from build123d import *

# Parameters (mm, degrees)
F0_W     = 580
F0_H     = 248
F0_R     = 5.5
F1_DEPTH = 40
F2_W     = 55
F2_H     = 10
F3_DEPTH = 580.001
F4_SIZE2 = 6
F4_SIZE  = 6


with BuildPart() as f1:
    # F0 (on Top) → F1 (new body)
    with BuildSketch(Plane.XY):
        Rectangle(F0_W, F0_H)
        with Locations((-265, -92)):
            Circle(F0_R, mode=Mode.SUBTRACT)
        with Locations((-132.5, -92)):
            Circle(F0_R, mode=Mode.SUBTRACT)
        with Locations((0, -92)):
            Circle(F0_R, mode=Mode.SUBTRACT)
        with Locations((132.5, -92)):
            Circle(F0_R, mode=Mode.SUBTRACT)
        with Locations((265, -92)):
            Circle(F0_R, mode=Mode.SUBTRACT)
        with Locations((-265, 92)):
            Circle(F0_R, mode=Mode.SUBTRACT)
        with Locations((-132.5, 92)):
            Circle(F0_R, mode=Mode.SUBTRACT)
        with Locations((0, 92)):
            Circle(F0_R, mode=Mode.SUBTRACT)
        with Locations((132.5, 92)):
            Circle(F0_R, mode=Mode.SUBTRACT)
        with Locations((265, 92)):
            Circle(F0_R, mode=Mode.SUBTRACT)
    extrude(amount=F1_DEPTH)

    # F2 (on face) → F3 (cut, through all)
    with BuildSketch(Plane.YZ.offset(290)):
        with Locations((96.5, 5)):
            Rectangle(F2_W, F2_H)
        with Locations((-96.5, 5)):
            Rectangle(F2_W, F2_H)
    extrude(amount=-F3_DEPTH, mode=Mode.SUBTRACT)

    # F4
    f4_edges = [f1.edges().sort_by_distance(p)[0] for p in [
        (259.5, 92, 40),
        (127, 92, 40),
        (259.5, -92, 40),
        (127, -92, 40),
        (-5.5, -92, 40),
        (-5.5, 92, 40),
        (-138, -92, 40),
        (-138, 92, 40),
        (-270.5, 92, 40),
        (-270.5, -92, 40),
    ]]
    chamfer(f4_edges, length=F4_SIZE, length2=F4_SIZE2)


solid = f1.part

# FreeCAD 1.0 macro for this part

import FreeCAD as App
import Part
import Sketcher
from FreeCAD import Vector
Q = App.Units.Quantity


def edges_at(feature, points):
    """Names of the edges that pass closest to the given points."""
    edges = feature.Shape.Edges
    near = lambda p: min(range(len(edges)), key=lambda i: edges[i].distToShape(Part.Vertex(*p))[0])
    return sorted({f"Edge{near(p) + 1}" for p in points})


def add_polygon(sketch, points):
    """Adds a closed chain of lines whose ends are joined by coincident constraints."""
    first, n = sketch.GeometryCount, len(points)
    for a, b in zip(points, points[1:] + points[:1]):
        sketch.addGeometry(Part.LineSegment(App.Vector(*a, 0), App.Vector(*b, 0)), False)
    for i in range(n):
        sketch.addConstraint(Sketcher.Constraint("Coincident", first + i, 2, first + (i + 1) % n, 1))

doc = App.newDocument("Part")
body = doc.addObject("PartDesign::Body", "Body")

# Sketch on XY plane
sketch1 = body.newObject("Sketcher::SketchObject", "Sketch")
sketch1.AttachmentSupport = (doc.getObject("XY_Plane"), [""])
sketch1.MapMode = "FlatFace"
add_polygon(sketch1, [(-290, 124), (-290, -124), (290, -124), (290, 124)])  # lines 0-3
sketch1.addGeometry(Part.Circle(Vector(-265, -92, 0), Vector(0, 0, 1), 6), False)  # 4
sketch1.addGeometry(Part.Circle(Vector(-132, -92, 0), Vector(0, 0, 1), 6), False)  # 5
sketch1.addGeometry(Part.Circle(Vector(0, -92, 0), Vector(0, 0, 1), 6), False)  # 6
sketch1.addGeometry(Part.Circle(Vector(132, -92, 0), Vector(0, 0, 1), 6), False)  # 7
sketch1.addGeometry(Part.Circle(Vector(265, -92, 0), Vector(0, 0, 1), 6), False)  # 8
sketch1.addGeometry(Part.Circle(Vector(-265, 92, 0), Vector(0, 0, 1), 6), False)  # 9
sketch1.addGeometry(Part.Circle(Vector(-132, 92, 0), Vector(0, 0, 1), 6), False)  # 10
sketch1.addGeometry(Part.Circle(Vector(0, 92, 0), Vector(0, 0, 1), 6), False)  # 11
sketch1.addGeometry(Part.Circle(Vector(132, 92, 0), Vector(0, 0, 1), 6), False)  # 12
sketch1.addGeometry(Part.Circle(Vector(265, 92, 0), Vector(0, 0, 1), 6), False)  # 13
sketch1.addConstraint(Sketcher.Constraint("Vertical", 0))
sketch1.addConstraint(Sketcher.Constraint("Horizontal", 1))
sketch1.addConstraint(Sketcher.Constraint("Vertical", 2))
sketch1.addConstraint(Sketcher.Constraint("Horizontal", 3))
sketch1.addConstraint(Sketcher.Constraint("Equal", 4, 5))
sketch1.addConstraint(Sketcher.Constraint("Equal", 5, 6))
sketch1.addConstraint(Sketcher.Constraint("Equal", 6, 7))
sketch1.addConstraint(Sketcher.Constraint("Equal", 7, 8))
sketch1.addConstraint(Sketcher.Constraint("Equal", 8, 9))
sketch1.addConstraint(Sketcher.Constraint("Equal", 9, 10))
sketch1.addConstraint(Sketcher.Constraint("Equal", 10, 11))
sketch1.addConstraint(Sketcher.Constraint("Equal", 11, 12))
sketch1.addConstraint(Sketcher.Constraint("Equal", 12, 13))
sketch1.addConstraint(Sketcher.Constraint("Symmetric", 8, 3, 9, 3, -1, 1))
sketch1.addConstraint(Sketcher.Constraint("Symmetric", 7, 3, 10, 3, -1, 1))
sketch1.addConstraint(Sketcher.Constraint("Symmetric", 6, 3, 11, 3, -1, 1))
sketch1.addConstraint(Sketcher.Constraint("Symmetric", 5, 3, 12, 3, -1, 1))
sketch1.addConstraint(Sketcher.Constraint("Symmetric", 4, 3, 13, 3, -1, 1))
sketch1.addConstraint(Sketcher.Constraint("Symmetric", 0, 2, 2, 2, -1, 1))
sketch1.addConstraint(Sketcher.Constraint("Symmetric", 5, 3, 7, 3, -2))
sketch1.addConstraint(Sketcher.Constraint("Symmetric", 4, 3, 8, 3, -2))
sketch1.addConstraint(Sketcher.Constraint("PointOnObject", 6, 3, -2))
sketch1.addConstraint(Sketcher.Constraint("Horizontal", 4, 3, 5, 3))
sketch1.addConstraint(Sketcher.Constraint("Horizontal", 5, 3, 6, 3))
sketch1.addConstraint(Sketcher.Constraint("Diameter", 4, Q("11 mm")))
sketch1.addConstraint(Sketcher.Constraint("DistanceX", 1, 1, 1, 2, Q("580 mm")))
sketch1.addConstraint(Sketcher.Constraint("DistanceY", 0, 2, 0, 1, Q("248 mm")))
sketch1.addConstraint(Sketcher.Constraint("DistanceX", 4, 3, -1, 1, Q("265 mm")))
sketch1.addConstraint(Sketcher.Constraint("DistanceY", 4, 3, -1, 1, Q("92 mm")))
sketch1.addConstraint(Sketcher.Constraint("DistanceX", 5, 3, 7, 3, Q("265 mm")))
pad1 = body.newObject("PartDesign::Pad", "Pad")
pad1.Profile = sketch1
pad1.Length = 40

# Sketch on YZ plane
sketch2 = body.newObject("Sketcher::SketchObject", "Sketch001")
sketch2.AttachmentSupport = (doc.getObject("YZ_Plane"), [""])
sketch2.MapMode = "FlatFace"
sketch2.AttachmentOffset = App.Placement(Vector(0, 0, 290), App.Rotation())
add_polygon(sketch2, [(69, 10), (69, 0), (124, 0), (124, 10)])  # lines 0-3
add_polygon(sketch2, [(-124, 10), (-124, 0), (-69, 0), (-69, 10)])  # lines 4-7
sketch2.addConstraint(Sketcher.Constraint("Vertical", 0))
sketch2.addConstraint(Sketcher.Constraint("Horizontal", 1))
sketch2.addConstraint(Sketcher.Constraint("Vertical", 2))
sketch2.addConstraint(Sketcher.Constraint("Horizontal", 3))
sketch2.addConstraint(Sketcher.Constraint("Vertical", 4))
sketch2.addConstraint(Sketcher.Constraint("Horizontal", 5))
sketch2.addConstraint(Sketcher.Constraint("Vertical", 6))
sketch2.addConstraint(Sketcher.Constraint("Horizontal", 7))
sketch2.addConstraint(Sketcher.Constraint("Symmetric", 1, 2, 4, 2, -1, 1))
sketch2.addConstraint(Sketcher.Constraint("Symmetric", 0, 2, 5, 2, -2))
sketch2.addConstraint(Sketcher.Constraint("Horizontal", 3, 2, 6, 2))
sketch2.addConstraint(Sketcher.Constraint("DistanceX", 1, 1, 1, 2, Q("55 mm")))
sketch2.addConstraint(Sketcher.Constraint("DistanceY", 0, 2, 0, 1, Q("10 mm")))
sketch2.addConstraint(Sketcher.Constraint("DistanceX", -1, 1, 0, 2, Q("69 mm")))
pocket1 = body.newObject("PartDesign::Pocket", "Pocket")
pocket1.Profile = sketch2
pocket1.Type = "ThroughAll"
doc.recompute()

chamfer = body.newObject("PartDesign::Chamfer", "Chamfer")
chamfer.Base = (pocket1, edges_at(pocket1, [
    (259.5, 92, 40),
    (127, 92, 40),
    (259.5, -92, 40),
    (127, -92, 40),
    (-5.5, -92, 40),
    (-5.5, 92, 40),
    (-138, -92, 40),
    (-138, 92, 40),
    (-270.5, 92, 40),
    (-270.5, -92, 40),
]))
chamfer.ChamferType = "Two distances"
chamfer.Size = 6
chamfer.Size2 = 6

doc.recompute()
